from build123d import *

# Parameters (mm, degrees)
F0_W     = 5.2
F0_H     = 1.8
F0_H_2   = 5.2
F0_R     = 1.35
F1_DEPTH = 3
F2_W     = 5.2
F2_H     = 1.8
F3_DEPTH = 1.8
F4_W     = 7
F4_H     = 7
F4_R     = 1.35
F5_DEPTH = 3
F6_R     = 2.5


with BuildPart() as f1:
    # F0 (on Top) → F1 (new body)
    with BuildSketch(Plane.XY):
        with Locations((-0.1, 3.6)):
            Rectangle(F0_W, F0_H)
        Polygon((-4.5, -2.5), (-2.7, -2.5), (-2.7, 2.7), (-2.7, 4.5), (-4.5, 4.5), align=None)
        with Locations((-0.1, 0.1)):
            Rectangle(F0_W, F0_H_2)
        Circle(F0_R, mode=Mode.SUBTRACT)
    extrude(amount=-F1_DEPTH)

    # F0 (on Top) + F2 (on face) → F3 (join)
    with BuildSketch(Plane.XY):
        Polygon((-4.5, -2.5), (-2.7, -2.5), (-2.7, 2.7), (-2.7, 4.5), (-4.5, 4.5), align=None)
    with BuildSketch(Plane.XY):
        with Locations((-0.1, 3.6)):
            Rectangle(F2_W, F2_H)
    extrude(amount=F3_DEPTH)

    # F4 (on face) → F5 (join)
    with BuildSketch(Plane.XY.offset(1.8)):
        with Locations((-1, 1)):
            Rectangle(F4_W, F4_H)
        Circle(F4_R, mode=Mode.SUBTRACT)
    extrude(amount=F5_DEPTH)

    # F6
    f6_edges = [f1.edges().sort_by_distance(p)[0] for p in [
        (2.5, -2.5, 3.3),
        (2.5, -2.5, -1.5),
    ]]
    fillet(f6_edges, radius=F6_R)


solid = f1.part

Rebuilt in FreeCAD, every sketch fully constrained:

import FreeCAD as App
import Part
import Sketcher
from FreeCAD import Vector
Q = App.Units.Quantity


def edges_at(feature, points):
    """Names of the edges that pass closest to the given points."""
    edges = feature.Shape.Edges
    near = lambda p: min(range(len(edges)), key=lambda i: edges[i].distToShape(Part.Vertex(*p))[0])
    return sorted({f"Edge{near(p) + 1}" for p in points})


def add_polygon(sketch, points):
    """Adds a closed chain of lines whose ends are joined by coincident constraints."""
    first, n = sketch.GeometryCount, len(points)
    for a, b in zip(points, points[1:] + points[:1]):
        sketch.addGeometry(Part.LineSegment(App.Vector(*a, 0), App.Vector(*b, 0)), False)
    for i in range(n):
        sketch.addConstraint(Sketcher.Constraint("Coincident", first + i, 2, first + (i + 1) % n, 1))

doc = App.newDocument("Part")
body = doc.addObject("PartDesign::Body", "Body")

# Sketch on XY plane
sketch1 = body.newObject("Sketcher::SketchObject", "Sketch")
sketch1.AttachmentSupport = (doc.getObject("XY_Plane"), [""])
sketch1.MapMode = "FlatFace"
add_polygon(sketch1, [(2.5, 4.5), (-4.5, 4.5), (-4.5, -2.5), (2.5, -2.5)])  # lines 0-3
sketch1.addGeometry(Part.Circle(Vector(0, 0, 0), Vector(0, 0, 1), 1.4), False)  # 4
sketch1.addConstraint(Sketcher.Constraint("Horizontal", 0))
sketch1.addConstraint(Sketcher.Constraint("Vertical", 1))
sketch1.addConstraint(Sketcher.Constraint("Horizontal", 2))
sketch1.addConstraint(Sketcher.Constraint("Vertical", 3))
sketch1.addConstraint(Sketcher.Constraint("Coincident", 4, 3, -1, 1))
sketch1.addConstraint(Sketcher.Constraint("Equal", 2, 1))
sketch1.addConstraint(Sketcher.Constraint("Diameter", 4, Q("2.7 mm")))
sketch1.addConstraint(Sketcher.Constraint("DistanceX", 0, 2, 0, 1, Q("7 mm")))
sketch1.addConstraint(Sketcher.Constraint("DistanceX", 0, 2, -1, 1, Q("4.5 mm")))
sketch1.addConstraint(Sketcher.Constraint("DistanceY", -1, 1, 0, 2, Q("4.5 mm")))
pad1 = body.newObject("PartDesign::Pad", "Pad")
pad1.Profile = sketch1
pad1.Length = 3
pad1.Reversed = True

# Sketch on XY plane
sketch2 = body.newObject("Sketcher::SketchObject", "Sketch001")
sketch2.AttachmentSupport = (doc.getObject("XY_Plane"), [""])
sketch2.MapMode = "FlatFace"
add_polygon(sketch2, [(-4.5, -2.5), (-2.7, -2.5), (-2.7, 2.7), (2.5, 2.7), (2.5, 4.5), (-4.5, 4.5)])  # lines 0-5
sketch2.addConstraint(Sketcher.Constraint("Horizontal", 0))
sketch2.addConstraint(Sketcher.Constraint("Vertical", 1))
sketch2.addConstraint(Sketcher.Constraint("Horizontal", 2))
sketch2.addConstraint(Sketcher.Constraint("Vertical", 3))
sketch2.addConstraint(Sketcher.Constraint("Horizontal", 4))
sketch2.addConstraint(Sketcher.Constraint("Vertical", 5))
sketch2.addConstraint(Sketcher.Constraint("Equal", 2, 1))
sketch2.addConstraint(Sketcher.Constraint("Equal", 0, 3))
sketch2.addConstraint(Sketcher.Constraint("DistanceX", 4, 2, 4, 1, Q("7 mm")))
sketch2.addConstraint(Sketcher.Constraint("DistanceX", 0, 1, 0, 2, Q("1.8 mm")))
sketch2.addConstraint(Sketcher.Constraint("DistanceX", 0, 2, -1, 1, Q("2.7 mm")))
sketch2.addConstraint(Sketcher.Constraint("DistanceY", 0, 2, -1, 1, Q("2.5 mm")))
pad2 = body.newObject("PartDesign::Pad", "Pad001")
pad2.Profile = sketch2
pad2.Length = 1.8

# Sketch on XY plane
sketch3 = body.newObject("Sketcher::SketchObject", "Sketch002")
sketch3.AttachmentSupport = (doc.getObject("XY_Plane"), [""])
sketch3.MapMode = "FlatFace"
sketch3.AttachmentOffset = App.Placement(Vector(0, 0, 1.8), App.Rotation())
add_polygon(sketch3, [(-4.5, 4.5), (-4.5, -2.5), (2.5, -2.5), (2.5, 4.5)])  # lines 0-3
sketch3.addGeometry(Part.Circle(Vector(0, 0, 0), Vector(0, 0, 1), 1.4), False)  # 4
sketch3.addConstraint(Sketcher.Constraint("Vertical", 0))
sketch3.addConstraint(Sketcher.Constraint("Horizontal", 1))
sketch3.addConstraint(Sketcher.Constraint("Vertical", 2))
sketch3.addConstraint(Sketcher.Constraint("Horizontal", 3))
sketch3.addConstraint(Sketcher.Constraint("Coincident", 4, 3, -1, 1))
sketch3.addConstraint(Sketcher.Constraint("Equal", 3, 0))
sketch3.addConstraint(Sketcher.Constraint("Diameter", 4, Q("2.7 mm")))
sketch3.addConstraint(Sketcher.Constraint("DistanceX", 1, 1, 1, 2, Q("7 mm")))
sketch3.addConstraint(Sketcher.Constraint("DistanceX", 0, 2, -1, 1, Q("4.5 mm")))
sketch3.addConstraint(Sketcher.Constraint("DistanceY", 0, 2, -1, 1, Q("2.5 mm")))
pad3 = body.newObject("PartDesign::Pad", "Pad002")
pad3.Profile = sketch3
pad3.Length = 3
doc.recompute()

fillet = body.newObject("PartDesign::Fillet", "Fillet")
fillet.Base = (pad3, edges_at(pad3, [(2.5, -2.5, 3.3), (2.5, -2.5, -1.5)]))
fillet.Radius = 2.5

doc.recompute()
